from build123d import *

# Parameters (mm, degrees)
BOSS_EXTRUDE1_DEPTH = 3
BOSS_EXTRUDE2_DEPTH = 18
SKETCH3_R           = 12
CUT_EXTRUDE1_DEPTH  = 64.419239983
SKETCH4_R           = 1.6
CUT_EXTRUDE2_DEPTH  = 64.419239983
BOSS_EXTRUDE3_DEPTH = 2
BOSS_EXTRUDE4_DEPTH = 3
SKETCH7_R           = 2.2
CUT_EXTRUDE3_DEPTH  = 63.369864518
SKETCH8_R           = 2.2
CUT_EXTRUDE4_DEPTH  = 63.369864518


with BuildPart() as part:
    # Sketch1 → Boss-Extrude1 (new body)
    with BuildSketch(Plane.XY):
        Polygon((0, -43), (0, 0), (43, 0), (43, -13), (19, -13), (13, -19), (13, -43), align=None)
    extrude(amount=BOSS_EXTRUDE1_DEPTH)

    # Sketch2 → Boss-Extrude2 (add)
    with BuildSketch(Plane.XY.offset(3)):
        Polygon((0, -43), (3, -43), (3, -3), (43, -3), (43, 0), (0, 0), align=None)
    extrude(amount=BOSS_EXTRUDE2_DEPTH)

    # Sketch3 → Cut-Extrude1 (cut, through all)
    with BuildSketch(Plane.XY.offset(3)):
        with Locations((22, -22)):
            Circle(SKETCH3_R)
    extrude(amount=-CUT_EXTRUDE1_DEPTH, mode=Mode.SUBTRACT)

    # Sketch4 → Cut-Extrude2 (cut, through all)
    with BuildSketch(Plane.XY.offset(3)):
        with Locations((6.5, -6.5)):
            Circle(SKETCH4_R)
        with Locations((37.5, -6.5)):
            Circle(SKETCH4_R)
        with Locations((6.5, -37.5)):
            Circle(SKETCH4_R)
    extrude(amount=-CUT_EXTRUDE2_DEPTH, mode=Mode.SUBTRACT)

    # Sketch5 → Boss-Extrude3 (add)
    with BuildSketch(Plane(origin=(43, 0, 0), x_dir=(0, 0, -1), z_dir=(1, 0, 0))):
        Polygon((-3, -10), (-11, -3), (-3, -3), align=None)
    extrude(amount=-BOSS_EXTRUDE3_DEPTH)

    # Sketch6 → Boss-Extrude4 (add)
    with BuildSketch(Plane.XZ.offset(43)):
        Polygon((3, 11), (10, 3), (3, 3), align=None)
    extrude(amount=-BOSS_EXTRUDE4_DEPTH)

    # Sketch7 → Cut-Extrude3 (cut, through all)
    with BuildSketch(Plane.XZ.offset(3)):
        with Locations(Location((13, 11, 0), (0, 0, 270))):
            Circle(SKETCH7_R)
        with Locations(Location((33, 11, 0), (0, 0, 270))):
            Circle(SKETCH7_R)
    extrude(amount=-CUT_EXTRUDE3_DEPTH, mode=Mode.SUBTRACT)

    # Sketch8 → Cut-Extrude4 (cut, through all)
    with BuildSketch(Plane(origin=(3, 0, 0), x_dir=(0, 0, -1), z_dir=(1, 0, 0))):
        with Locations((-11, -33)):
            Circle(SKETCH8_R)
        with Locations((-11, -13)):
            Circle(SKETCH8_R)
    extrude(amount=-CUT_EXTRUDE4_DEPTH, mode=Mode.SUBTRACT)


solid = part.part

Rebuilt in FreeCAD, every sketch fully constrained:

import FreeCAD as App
import Part
import Sketcher
Q = App.Units.Quantity


def add_polygon(sketch, points):
    """Adds a closed chain of lines whose ends are joined by coincident constraints."""
    first, n = sketch.GeometryCount, len(points)
    for a, b in zip(points, points[1:] + points[:1]):
        sketch.addGeometry(Part.LineSegment(App.Vector(*a, 0), App.Vector(*b, 0)), False)
    for i in range(n):
        sketch.addConstraint(Sketcher.Constraint("Coincident", first + i, 2, first + (i + 1) % n, 1))

doc = App.newDocument("Part")
body = doc.addObject("PartDesign::Body", "Body")

# Sketch on XY plane
sketch1 = body.newObject("Sketcher::SketchObject", "Sketch")
sketch1.AttachmentSupport = (doc.getObject("XY_Plane"), [""])
sketch1.MapMode = "FlatFace"
add_polygon(sketch1, [(0, 0), (0, -43), (13, -43), (13, -19), (19, -13), (43, -13), (43, 0)])  # lines 0-6
sketch1.addConstraint([
    Sketcher.Constraint("Vertical", 0),
    Sketcher.Constraint("Horizontal", 1),
    Sketcher.Constraint("Vertical", 2),
    Sketcher.Constraint("Horizontal", 4),
    Sketcher.Constraint("Vertical", 5),
    Sketcher.Constraint("Horizontal", 6),
    Sketcher.Constraint("Coincident", 6, 2, -1, 1),
    Sketcher.Constraint("Equal", 6, 0),
    Sketcher.Constraint("Equal", 4, 2),
    Sketcher.Constraint("Equal", 1, 5),
    Sketcher.Constraint("DistanceX", 1, 1, 1, 2, Q("13 mm")),
    Sketcher.Constraint("DistanceX", 4, 1, 4, 2, Q("24 mm")),
    Sketcher.Constraint("DistanceX", 6, 2, 6, 1, Q("43 mm")),
])
pad1 = body.newObject("PartDesign::Pad", "Pad")
pad1.Profile = sketch1
pad1.Length = 3

# Sketch on XY plane
sketch2 = body.newObject("Sketcher::SketchObject", "Sketch001")
sketch2.AttachmentSupport = (doc.getObject("XY_Plane"), [""])
sketch2.MapMode = "FlatFace"
sketch2.AttachmentOffset = App.Placement(App.Vector(0, 0, 3), App.Rotation())
add_polygon(sketch2, [(0, -43), (3, -43), (3, -3), (43, -3), (43, 0), (0, 0)])  # lines 0-5
sketch2.addConstraint([
    Sketcher.Constraint("Horizontal", 0),
    Sketcher.Constraint("Vertical", 1),
    Sketcher.Constraint("Horizontal", 2),
    Sketcher.Constraint("Vertical", 3),
    Sketcher.Constraint("Horizontal", 4),
    Sketcher.Constraint("Vertical", 5),
    Sketcher.Constraint("Coincident", 4, 2, -1, 1),
    Sketcher.Constraint("Equal", 2, 1),
    Sketcher.Constraint("Equal", 0, 3),
    Sketcher.Constraint("DistanceX", 0, 1, 0, 2, Q("3 mm")),
    Sketcher.Constraint("DistanceX", 2, 1, 2, 2, Q("40 mm")),
])
pad2 = body.newObject("PartDesign::Pad", "Pad001")
pad2.Profile = sketch2
pad2.Length = 18

# Sketch on XY plane
sketch3 = body.newObject("Sketcher::SketchObject", "Sketch002")
sketch3.AttachmentSupport = (doc.getObject("XY_Plane"), [""])
sketch3.MapMode = "FlatFace"
sketch3.AttachmentOffset = App.Placement(App.Vector(0, 0, 3), App.Rotation())
sketch3.addGeometry(Part.Circle(App.Vector(22, -22, 0), App.Vector(0, 0, 1), 12), False)
sketch3.addConstraint([
    Sketcher.Constraint("Diameter", 0, Q("24 mm")),
    Sketcher.Constraint("DistanceX", -1, 1, 0, 3, Q("22 mm")),
    Sketcher.Constraint("DistanceY", 0, 3, -1, 1, Q("22 mm")),
])
pocket1 = body.newObject("PartDesign::Pocket", "Pocket")
pocket1.Profile = sketch3
pocket1.Type = "ThroughAll"

# Sketch on XY plane
sketch4 = body.newObject("Sketcher::SketchObject", "Sketch003")
sketch4.AttachmentSupport = (doc.getObject("XY_Plane"), [""])
sketch4.MapMode = "FlatFace"
sketch4.AttachmentOffset = App.Placement(App.Vector(0, 0, 3), App.Rotation())
sketch4.addGeometry([
    Part.Circle(App.Vector(6.5, -6.5, 0), App.Vector(0, 0, 1), 1.6),
    Part.Circle(App.Vector(37.5, -6.5, 0), App.Vector(0, 0, 1), 1.6),
    Part.Circle(App.Vector(6.5, -37.5, 0), App.Vector(0, 0, 1), 1.6),
], False)
sketch4.addConstraint([
    Sketcher.Constraint("Equal", 0, 1),
    Sketcher.Constraint("Equal", 1, 2),
    Sketcher.Constraint("Horizontal", 0, 3, 1, 3),
    Sketcher.Constraint("Vertical", 0, 3, 2, 3),
    Sketcher.Constraint("Diameter", 0, Q("3.2 mm")),
    Sketcher.Constraint("DistanceX", 0, 3, 1, 3, Q("31 mm")),
    Sketcher.Constraint("DistanceY", 2, 3, 0, 3, Q("31 mm")),
    Sketcher.Constraint("DistanceX", -1, 1, 0, 3, Q("6.5 mm")),
    Sketcher.Constraint("DistanceY", 0, 3, -1, 1, Q("6.5 mm")),
])
pocket2 = body.newObject("PartDesign::Pocket", "Pocket001")
pocket2.Profile = sketch4
pocket2.Type = "ThroughAll"

# Sketch on YZ plane
sketch5 = body.newObject("Sketcher::SketchObject", "Sketch004")
sketch5.AttachmentSupport = (doc.getObject("YZ_Plane"), [""])
sketch5.MapMode = "FlatFace"
sketch5.AttachmentOffset = App.Placement(App.Vector(0, 0, 43), App.Rotation())
add_polygon(sketch5, [(-3, 11), (-10, 3), (-3, 3)])  # lines 0-2
sketch5.addConstraint([
    Sketcher.Constraint("Horizontal", 1),
    Sketcher.Constraint("Vertical", 2),
    Sketcher.Constraint("DistanceX", 1, 1, 1, 2, Q("7 mm")),
    Sketcher.Constraint("DistanceY", 2, 1, 2, 2, Q("8 mm")),
    Sketcher.Constraint("DistanceX", 0, 2, -1, 1, Q("10 mm")),
    Sketcher.Constraint("DistanceY", -1, 1, 0, 2, Q("3 mm")),
])
pad3 = body.newObject("PartDesign::Pad", "Pad002")
pad3.Profile = sketch5
pad3.Length = 2
pad3.Reversed = True

# Sketch on XZ plane
sketch6 = body.newObject("Sketcher::SketchObject", "Sketch005")
sketch6.AttachmentSupport = (doc.getObject("XZ_Plane"), [""])
sketch6.MapMode = "FlatFace"
sketch6.AttachmentOffset = App.Placement(App.Vector(0, 0, 43), App.Rotation())
add_polygon(sketch6, [(10, 3), (3, 11), (3, 3)])  # lines 0-2
sketch6.addConstraint([
    Sketcher.Constraint("Vertical", 1),
    Sketcher.Constraint("Horizontal", 2),
    Sketcher.Constraint("DistanceX", 2, 1, 2, 2, Q("7 mm")),
    Sketcher.Constraint("DistanceY", 1, 2, 1, 1, Q("8 mm")),
    Sketcher.Constraint("DistanceX", -1, 1, 0, 2, Q("3 mm")),
    Sketcher.Constraint("DistanceY", -1, 1, 0, 2, Q("11 mm")),
])
pad4 = body.newObject("PartDesign::Pad", "Pad003")
pad4.Profile = sketch6
pad4.Length = 3
pad4.Reversed = True

# Sketch on XZ plane
sketch7 = body.newObject("Sketcher::SketchObject", "Sketch006")
sketch7.AttachmentSupport = (doc.getObject("XZ_Plane"), [""])
sketch7.MapMode = "FlatFace"
sketch7.AttachmentOffset = App.Placement(App.Vector(0, 0, 3), App.Rotation())
sketch7.addGeometry([
    Part.Circle(App.Vector(13, 11, 0), App.Vector(0, 0, 1), 2.2),
    Part.Circle(App.Vector(33, 11, 0), App.Vector(0, 0, 1), 2.2),
], False)
sketch7.addConstraint([
    Sketcher.Constraint("Equal", 0, 1),
    Sketcher.Constraint("Horizontal", 0, 3, 1, 3),
    Sketcher.Constraint("Diameter", 0, Q("4.4 mm")),
    Sketcher.Constraint("DistanceX", -1, 1, 0, 3, Q("13 mm")),
    Sketcher.Constraint("DistanceY", -1, 1, 0, 3, Q("11 mm")),
    Sketcher.Constraint("DistanceX", -1, 1, 1, 3, Q("33 mm")),
])
pocket3 = body.newObject("PartDesign::Pocket", "Pocket002")
pocket3.Profile = sketch7
pocket3.Type = "ThroughAll"

# Sketch on YZ plane
sketch8 = body.newObject("Sketcher::SketchObject", "Sketch007")
sketch8.AttachmentSupport = (doc.getObject("YZ_Plane"), [""])
sketch8.MapMode = "FlatFace"
sketch8.AttachmentOffset = App.Placement(App.Vector(0, 0, 3), App.Rotation())
sketch8.addGeometry([
    Part.Circle(App.Vector(-33, 11, 0), App.Vector(0, 0, 1), 2.2),
    Part.Circle(App.Vector(-13, 11, 0), App.Vector(0, 0, 1), 2.2),
], False)
sketch8.addConstraint([
    Sketcher.Constraint("Equal", 0, 1),
    Sketcher.Constraint("Horizontal", 0, 3, 1, 3),
    Sketcher.Constraint("Diameter", 0, Q("4.4 mm")),
    Sketcher.Constraint("DistanceX", 0, 3, -1, 1, Q("33 mm")),
    Sketcher.Constraint("DistanceY", -1, 1, 0, 3, Q("11 mm")),
    Sketcher.Constraint("DistanceX", 1, 3, -1, 1, Q("13 mm")),
])
pocket4 = body.newObject("PartDesign::Pocket", "Pocket003")
pocket4.Profile = sketch8
pocket4.Type = "ThroughAll"

doc.recompute()
